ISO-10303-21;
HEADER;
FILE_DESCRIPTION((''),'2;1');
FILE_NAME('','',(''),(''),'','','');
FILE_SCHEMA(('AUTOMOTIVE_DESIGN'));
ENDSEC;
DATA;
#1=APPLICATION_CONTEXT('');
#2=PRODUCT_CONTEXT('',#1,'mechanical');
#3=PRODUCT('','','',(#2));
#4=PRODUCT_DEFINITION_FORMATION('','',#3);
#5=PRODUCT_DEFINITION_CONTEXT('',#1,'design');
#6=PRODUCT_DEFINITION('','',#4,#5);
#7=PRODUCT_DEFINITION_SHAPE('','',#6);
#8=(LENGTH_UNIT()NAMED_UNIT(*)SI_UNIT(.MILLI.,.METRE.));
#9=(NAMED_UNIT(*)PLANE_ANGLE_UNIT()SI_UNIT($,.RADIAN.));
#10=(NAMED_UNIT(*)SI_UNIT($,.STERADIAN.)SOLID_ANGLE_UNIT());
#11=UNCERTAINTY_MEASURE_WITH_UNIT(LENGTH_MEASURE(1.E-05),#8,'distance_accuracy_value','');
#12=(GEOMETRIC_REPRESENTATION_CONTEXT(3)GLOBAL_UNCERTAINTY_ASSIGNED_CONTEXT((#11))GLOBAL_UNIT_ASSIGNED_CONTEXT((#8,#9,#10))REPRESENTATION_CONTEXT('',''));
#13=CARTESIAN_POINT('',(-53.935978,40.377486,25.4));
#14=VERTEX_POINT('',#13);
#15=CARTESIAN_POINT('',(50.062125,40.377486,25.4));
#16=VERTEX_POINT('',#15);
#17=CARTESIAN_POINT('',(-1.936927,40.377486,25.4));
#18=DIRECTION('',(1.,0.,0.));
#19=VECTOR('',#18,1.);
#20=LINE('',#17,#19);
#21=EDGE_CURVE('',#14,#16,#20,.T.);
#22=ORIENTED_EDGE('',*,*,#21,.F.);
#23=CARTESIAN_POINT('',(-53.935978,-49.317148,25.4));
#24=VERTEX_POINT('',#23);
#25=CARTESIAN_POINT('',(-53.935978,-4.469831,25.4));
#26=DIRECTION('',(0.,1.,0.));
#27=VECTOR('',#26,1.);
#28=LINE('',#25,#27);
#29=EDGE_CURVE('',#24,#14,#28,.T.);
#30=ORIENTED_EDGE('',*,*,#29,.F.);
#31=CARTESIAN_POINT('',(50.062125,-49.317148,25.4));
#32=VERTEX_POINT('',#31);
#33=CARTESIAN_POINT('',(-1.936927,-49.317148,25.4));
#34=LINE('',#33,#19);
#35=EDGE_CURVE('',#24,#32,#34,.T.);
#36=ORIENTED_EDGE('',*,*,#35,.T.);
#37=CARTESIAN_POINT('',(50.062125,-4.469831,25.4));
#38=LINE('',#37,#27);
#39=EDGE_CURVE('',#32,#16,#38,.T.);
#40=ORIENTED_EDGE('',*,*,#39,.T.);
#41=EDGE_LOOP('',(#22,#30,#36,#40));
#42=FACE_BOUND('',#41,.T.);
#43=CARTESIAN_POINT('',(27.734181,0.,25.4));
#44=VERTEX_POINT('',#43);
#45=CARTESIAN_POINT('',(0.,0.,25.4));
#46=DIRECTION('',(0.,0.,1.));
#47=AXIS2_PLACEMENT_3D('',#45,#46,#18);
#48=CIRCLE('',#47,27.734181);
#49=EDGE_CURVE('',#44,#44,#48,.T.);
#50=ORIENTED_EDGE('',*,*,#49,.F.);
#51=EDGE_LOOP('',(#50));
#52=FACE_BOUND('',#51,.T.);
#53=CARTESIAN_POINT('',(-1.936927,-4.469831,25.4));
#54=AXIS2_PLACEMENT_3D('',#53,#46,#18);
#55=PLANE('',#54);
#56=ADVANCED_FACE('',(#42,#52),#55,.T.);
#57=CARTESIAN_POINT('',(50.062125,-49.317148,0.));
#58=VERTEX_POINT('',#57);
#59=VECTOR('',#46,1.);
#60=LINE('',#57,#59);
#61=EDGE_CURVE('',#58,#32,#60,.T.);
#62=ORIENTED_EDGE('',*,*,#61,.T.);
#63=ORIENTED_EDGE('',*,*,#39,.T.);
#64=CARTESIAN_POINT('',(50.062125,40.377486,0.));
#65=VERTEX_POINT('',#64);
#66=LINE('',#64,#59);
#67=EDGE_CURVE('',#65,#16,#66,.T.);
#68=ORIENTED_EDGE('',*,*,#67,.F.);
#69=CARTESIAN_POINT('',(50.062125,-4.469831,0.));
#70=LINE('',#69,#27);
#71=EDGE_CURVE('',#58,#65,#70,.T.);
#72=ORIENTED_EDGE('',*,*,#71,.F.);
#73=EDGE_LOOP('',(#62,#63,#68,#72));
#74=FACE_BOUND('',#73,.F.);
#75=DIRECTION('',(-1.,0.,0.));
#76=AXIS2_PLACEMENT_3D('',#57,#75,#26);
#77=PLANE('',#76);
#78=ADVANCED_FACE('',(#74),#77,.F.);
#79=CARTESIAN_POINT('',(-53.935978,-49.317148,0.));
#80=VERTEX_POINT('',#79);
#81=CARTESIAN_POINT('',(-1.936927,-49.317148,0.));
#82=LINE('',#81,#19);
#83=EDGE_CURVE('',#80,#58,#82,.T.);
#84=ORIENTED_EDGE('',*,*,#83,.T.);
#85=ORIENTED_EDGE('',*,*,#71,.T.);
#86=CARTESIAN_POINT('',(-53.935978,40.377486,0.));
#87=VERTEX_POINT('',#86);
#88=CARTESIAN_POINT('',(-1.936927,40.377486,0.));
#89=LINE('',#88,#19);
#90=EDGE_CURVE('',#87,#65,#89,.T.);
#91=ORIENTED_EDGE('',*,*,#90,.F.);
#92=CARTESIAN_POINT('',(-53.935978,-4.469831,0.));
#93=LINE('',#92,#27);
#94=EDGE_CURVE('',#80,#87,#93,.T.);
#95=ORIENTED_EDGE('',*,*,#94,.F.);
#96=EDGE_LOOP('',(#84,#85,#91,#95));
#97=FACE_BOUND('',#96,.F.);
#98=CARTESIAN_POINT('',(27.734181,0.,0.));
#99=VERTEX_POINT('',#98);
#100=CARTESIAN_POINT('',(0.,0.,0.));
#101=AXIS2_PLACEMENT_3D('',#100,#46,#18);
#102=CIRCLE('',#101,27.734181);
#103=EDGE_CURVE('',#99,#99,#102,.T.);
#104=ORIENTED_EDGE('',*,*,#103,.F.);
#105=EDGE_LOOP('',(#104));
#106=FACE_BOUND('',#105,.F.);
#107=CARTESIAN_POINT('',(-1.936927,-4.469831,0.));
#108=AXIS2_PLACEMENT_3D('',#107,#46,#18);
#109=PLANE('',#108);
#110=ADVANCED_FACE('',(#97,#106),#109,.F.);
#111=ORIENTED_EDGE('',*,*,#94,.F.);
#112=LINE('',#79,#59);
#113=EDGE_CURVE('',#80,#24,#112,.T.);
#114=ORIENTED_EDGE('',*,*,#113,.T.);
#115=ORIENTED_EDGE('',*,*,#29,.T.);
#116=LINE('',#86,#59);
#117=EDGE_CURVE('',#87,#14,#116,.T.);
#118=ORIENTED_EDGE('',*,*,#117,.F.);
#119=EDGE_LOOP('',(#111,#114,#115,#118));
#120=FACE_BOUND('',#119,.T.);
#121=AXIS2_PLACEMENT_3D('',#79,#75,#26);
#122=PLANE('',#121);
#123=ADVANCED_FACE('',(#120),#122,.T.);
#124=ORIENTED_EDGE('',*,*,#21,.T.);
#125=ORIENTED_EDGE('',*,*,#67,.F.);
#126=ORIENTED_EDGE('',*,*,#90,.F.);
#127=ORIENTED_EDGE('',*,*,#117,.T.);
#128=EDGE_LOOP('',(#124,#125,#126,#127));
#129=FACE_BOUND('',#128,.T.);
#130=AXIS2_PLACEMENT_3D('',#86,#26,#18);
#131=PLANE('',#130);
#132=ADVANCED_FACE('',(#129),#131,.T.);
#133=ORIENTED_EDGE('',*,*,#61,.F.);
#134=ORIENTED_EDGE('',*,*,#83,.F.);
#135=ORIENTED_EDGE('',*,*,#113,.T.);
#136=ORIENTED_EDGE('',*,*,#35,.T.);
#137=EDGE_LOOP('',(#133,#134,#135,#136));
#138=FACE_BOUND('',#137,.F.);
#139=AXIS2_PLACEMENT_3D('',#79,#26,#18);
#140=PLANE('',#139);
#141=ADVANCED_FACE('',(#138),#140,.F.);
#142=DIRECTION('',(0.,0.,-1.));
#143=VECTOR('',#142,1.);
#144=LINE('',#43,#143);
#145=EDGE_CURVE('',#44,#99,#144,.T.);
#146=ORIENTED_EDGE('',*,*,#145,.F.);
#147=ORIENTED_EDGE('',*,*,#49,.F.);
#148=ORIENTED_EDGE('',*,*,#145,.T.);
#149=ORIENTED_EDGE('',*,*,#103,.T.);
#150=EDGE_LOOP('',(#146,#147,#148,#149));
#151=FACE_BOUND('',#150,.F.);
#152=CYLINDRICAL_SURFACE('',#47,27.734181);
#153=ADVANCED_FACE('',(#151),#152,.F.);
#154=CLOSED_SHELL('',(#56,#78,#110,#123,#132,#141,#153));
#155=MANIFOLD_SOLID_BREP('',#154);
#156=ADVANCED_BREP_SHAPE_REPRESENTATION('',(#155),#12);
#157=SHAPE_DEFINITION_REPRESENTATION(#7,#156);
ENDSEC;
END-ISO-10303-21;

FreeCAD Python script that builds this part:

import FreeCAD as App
import Part
import Sketcher
from FreeCAD import Vector
Q = App.Units.Quantity

doc = App.newDocument("Part")
params = doc.addObject("Spreadsheet::Sheet", "Params")
for row, (alias, value) in enumerate([
    ("pad1_length", "1 in"),
    ("pocket1_length", "1 in"),
], start=1):
    params.set(f"A{row}", alias)
    params.set(f"B{row}", "=" + value)
    params.setAlias(f"B{row}", alias)

body = doc.addObject("PartDesign::Body", "Body")

# Sketch on XY plane
sketch1 = doc.addObject("Sketcher::SketchObject", "Sketch")
body.addObject(sketch1)
sketch1.AttachmentSupport = (doc.XY_Plane, [""])
sketch1.MapMode = "FlatFace"
sketch1.addGeometry([
    Part.LineSegment(Vector(-54, 40, 0), Vector(-54, -49, 0)),
    Part.LineSegment(Vector(-54, -49, 0), Vector(50, -49, 0)),
    Part.LineSegment(Vector(50, -49, 0), Vector(50, 40, 0)),
    Part.LineSegment(Vector(50, 40, 0), Vector(-54, 40, 0)),
], False)
sketch1.addConstraint([
    Sketcher.Constraint("Coincident", 0, 2, 1, 1),
    Sketcher.Constraint("Coincident", 1, 2, 2, 1),
    Sketcher.Constraint("Coincident", 2, 2, 3, 1),
    Sketcher.Constraint("Coincident", 3, 2, 0, 1),
    Sketcher.Constraint("Vertical", 0),
    Sketcher.Constraint("Horizontal", 1),
    Sketcher.Constraint("Vertical", 2),
    Sketcher.Constraint("Horizontal", 3),
    Sketcher.Constraint("DistanceX", 1, 1, 1, 2, Q("103.998103 mm")),
    Sketcher.Constraint("DistanceY", 0, 2, 0, 1, Q("89.694634 mm")),
    Sketcher.Constraint("DistanceX", 0, 2, -1, 1, Q("53.935978 mm")),
    Sketcher.Constraint("DistanceY", 0, 2, -1, 1, Q("49.317148 mm")),
])
pad1 = doc.addObject("PartDesign::Pad", "Pad")
body.addObject(pad1)
pad1.Profile = sketch1
pad1.setExpression("Length", "Params.pad1_length")

# Sketch on XY plane
sketch2 = doc.addObject("Sketcher::SketchObject", "Sketch001")
body.addObject(sketch2)
sketch2.AttachmentSupport = (doc.XY_Plane, [""])
sketch2.MapMode = "FlatFace"
sketch2.AttachmentOffset = App.Placement(Vector(0, 0, 1 * 25.4), App.Rotation())
sketch2.addGeometry(Part.Circle(Vector(0, 0, 0), Vector(0, 0, 1), 28), False)
sketch2.addConstraint([
    Sketcher.Constraint("Coincident", 0, 3, -1, 1),
    Sketcher.Constraint("Diameter", 0, Q("55.468362 mm")),
])
pocket1 = doc.addObject("PartDesign::Pocket", "Pocket")
body.addObject(pocket1)
pocket1.Profile = sketch2
pocket1.setExpression("Length", "Params.pocket1_length")

doc.recompute()
